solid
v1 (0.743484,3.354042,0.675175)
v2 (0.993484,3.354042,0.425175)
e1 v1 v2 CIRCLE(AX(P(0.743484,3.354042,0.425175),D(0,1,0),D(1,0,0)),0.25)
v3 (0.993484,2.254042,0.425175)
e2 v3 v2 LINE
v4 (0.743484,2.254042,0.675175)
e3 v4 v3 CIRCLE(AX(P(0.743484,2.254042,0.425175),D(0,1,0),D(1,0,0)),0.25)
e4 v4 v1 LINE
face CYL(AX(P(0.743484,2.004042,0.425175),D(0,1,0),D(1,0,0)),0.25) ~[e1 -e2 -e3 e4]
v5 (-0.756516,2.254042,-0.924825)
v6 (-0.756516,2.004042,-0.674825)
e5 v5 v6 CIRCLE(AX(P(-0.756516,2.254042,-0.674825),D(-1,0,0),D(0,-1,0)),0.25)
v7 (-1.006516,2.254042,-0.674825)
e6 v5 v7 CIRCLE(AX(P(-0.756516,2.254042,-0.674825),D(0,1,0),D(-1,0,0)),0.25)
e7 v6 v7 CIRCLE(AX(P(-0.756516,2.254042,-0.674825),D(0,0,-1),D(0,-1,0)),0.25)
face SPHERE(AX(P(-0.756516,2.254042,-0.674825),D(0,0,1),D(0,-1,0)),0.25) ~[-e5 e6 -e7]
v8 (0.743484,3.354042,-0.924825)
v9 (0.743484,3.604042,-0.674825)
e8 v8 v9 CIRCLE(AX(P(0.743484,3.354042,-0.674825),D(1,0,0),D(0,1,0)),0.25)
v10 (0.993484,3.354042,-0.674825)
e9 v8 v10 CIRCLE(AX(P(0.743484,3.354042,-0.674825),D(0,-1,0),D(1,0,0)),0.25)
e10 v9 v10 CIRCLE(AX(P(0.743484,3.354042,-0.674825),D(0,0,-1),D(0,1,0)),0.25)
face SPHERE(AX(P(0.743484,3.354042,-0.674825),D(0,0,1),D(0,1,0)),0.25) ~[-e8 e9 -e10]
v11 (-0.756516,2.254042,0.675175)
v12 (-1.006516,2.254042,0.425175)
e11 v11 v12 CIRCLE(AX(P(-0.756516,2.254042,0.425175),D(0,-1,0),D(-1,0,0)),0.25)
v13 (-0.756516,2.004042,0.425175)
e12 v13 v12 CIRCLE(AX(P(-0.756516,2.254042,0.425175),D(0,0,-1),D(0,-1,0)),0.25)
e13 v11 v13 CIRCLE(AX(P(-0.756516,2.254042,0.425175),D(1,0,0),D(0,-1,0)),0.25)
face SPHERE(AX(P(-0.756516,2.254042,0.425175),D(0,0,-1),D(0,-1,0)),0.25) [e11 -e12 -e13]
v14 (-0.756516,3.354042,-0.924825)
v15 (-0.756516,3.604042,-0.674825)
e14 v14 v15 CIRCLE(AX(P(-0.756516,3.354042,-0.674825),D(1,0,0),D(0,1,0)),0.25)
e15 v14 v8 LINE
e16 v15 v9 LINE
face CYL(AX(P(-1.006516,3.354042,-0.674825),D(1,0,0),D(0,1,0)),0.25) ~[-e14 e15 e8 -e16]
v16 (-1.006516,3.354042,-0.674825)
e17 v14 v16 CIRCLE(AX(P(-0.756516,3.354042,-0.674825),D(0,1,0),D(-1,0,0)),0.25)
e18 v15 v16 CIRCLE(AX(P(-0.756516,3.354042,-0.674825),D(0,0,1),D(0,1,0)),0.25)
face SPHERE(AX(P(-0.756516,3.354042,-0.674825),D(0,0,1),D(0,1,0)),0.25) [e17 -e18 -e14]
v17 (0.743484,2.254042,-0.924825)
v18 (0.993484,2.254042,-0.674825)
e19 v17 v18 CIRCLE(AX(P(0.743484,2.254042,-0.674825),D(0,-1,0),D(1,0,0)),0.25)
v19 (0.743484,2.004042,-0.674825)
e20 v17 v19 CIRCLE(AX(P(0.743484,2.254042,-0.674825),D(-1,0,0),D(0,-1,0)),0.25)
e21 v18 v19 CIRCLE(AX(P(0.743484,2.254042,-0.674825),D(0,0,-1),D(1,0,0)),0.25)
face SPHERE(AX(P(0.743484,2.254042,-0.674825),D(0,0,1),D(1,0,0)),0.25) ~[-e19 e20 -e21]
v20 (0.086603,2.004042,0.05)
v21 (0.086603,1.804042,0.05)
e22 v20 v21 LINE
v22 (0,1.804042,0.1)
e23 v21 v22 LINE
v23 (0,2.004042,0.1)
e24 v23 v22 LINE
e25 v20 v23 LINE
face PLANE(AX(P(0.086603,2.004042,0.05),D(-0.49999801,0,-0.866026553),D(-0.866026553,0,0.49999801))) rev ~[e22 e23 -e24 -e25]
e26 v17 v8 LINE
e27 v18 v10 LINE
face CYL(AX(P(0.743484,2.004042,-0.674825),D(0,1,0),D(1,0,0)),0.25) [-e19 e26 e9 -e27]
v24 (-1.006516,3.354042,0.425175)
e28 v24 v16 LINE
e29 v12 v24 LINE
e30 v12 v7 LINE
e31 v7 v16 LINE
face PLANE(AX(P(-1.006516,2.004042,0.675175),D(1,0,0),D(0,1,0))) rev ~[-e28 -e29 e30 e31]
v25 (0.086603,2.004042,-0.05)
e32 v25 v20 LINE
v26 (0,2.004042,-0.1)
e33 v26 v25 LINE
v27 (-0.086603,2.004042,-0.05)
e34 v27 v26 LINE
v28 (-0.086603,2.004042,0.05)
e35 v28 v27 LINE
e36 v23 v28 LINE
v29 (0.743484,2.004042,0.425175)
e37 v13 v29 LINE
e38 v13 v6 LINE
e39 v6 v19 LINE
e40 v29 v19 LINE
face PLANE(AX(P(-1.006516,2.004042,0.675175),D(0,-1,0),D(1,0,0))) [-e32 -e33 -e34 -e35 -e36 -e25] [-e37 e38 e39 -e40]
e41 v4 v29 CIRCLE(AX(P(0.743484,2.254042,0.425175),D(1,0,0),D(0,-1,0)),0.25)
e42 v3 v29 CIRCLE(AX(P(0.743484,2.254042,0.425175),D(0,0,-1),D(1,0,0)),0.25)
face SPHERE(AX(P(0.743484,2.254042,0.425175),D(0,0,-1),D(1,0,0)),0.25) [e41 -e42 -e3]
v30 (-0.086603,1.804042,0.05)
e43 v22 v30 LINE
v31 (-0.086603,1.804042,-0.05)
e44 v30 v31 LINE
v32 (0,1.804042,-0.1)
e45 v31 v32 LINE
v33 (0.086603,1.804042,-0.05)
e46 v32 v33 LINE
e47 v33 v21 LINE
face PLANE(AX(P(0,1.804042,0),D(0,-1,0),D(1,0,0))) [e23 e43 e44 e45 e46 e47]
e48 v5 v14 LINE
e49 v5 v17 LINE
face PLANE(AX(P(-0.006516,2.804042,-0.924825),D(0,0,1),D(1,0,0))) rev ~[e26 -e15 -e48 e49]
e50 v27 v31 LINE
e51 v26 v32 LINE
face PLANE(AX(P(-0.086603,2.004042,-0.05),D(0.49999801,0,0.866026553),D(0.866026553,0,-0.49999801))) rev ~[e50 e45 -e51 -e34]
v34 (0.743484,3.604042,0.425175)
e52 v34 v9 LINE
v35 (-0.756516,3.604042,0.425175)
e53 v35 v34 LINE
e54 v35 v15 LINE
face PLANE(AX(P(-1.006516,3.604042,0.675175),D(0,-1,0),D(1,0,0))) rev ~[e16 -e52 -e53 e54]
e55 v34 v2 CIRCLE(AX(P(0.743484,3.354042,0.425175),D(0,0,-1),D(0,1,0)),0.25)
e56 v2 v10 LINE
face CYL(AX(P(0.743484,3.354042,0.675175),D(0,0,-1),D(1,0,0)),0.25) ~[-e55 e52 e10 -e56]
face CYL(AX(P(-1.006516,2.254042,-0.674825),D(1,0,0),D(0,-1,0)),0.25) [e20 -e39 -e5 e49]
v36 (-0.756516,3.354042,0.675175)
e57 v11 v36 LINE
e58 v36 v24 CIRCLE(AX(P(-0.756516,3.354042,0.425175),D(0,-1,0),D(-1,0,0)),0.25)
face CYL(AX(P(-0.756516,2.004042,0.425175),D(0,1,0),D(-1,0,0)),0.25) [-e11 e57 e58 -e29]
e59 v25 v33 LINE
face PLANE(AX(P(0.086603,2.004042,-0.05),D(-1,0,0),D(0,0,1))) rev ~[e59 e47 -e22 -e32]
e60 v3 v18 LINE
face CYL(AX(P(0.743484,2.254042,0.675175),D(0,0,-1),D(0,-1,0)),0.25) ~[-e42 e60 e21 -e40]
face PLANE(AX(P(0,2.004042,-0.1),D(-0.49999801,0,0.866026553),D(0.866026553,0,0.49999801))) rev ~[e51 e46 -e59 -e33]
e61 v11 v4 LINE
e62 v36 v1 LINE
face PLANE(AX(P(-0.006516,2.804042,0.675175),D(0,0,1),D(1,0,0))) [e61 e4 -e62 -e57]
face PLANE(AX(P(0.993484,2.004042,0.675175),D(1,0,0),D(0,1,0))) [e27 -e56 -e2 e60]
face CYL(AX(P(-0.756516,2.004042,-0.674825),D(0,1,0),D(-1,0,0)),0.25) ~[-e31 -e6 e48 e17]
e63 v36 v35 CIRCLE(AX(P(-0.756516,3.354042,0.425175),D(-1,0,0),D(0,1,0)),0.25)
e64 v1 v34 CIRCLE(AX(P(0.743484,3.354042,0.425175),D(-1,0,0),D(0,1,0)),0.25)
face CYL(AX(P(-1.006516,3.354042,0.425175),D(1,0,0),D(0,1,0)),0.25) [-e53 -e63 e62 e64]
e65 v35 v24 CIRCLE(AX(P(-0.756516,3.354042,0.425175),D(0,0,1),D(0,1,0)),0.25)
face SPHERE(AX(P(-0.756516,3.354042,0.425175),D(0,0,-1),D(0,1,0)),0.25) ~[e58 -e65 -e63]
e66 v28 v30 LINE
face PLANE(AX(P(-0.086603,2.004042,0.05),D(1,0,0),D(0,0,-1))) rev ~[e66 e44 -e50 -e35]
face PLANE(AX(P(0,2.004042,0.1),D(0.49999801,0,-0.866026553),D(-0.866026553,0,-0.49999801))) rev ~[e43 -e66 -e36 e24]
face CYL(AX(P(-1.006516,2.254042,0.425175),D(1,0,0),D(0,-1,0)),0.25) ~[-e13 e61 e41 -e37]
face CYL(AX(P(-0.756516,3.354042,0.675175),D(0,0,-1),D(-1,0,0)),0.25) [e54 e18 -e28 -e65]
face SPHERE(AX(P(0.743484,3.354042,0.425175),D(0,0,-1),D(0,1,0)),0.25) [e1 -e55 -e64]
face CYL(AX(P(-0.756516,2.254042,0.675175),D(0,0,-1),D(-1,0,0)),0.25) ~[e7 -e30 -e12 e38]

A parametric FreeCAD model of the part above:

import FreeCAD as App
import Part
import Sketcher

V = App.Vector

doc = App.newDocument("Part")
params = doc.addObject("Spreadsheet::Sheet", "Params")
for row, (alias, value) in enumerate([
    ("sketch1_width", "2 mm"),
    ("sketch1_height", "1.6 mm"),
    ("pad1_length", "1.6 mm"),
    ("fillet_radius", "0.25 mm"),
    ("sketch2_height", "0.1 mm"),
    ("sketch2_length", "0.1 mm"),
    ("pad2_length", "0.2 mm"),
], start=1):
    params.set(f"A{row}", alias)
    params.set(f"B{row}", "=" + value)
    params.setAlias(f"B{row}", alias)

body = doc.addObject("PartDesign::Body", "Body")

sketch1 = doc.addObject("Sketcher::SketchObject", "Sketch")
body.addObject(sketch1)
sketch1.AttachmentSupport = (doc.XY_Plane, [""])
sketch1.MapMode = "FlatFace"
sketch1.AttachmentOffset = App.Placement(V(0, 0, 0.675175), App.Rotation())
sketch1.addGeometry(Part.LineSegment(V(-1.006516, 3.604042, 0), V(-1.006516, 2.004042, 0)), False)
sketch1.addGeometry(Part.LineSegment(V(-1.006516, 2.004042, 0), V(0.993484, 2.004042, 0)), False)
sketch1.addGeometry(Part.LineSegment(V(0.993484, 2.004042, 0), V(0.993484, 3.604042, 0)), False)
sketch1.addGeometry(Part.LineSegment(V(0.993484, 3.604042, 0), V(-1.006516, 3.604042, 0)), False)
sketch1.addConstraint(Sketcher.Constraint("Coincident", 0, 2, 1, 1))
sketch1.addConstraint(Sketcher.Constraint("Coincident", 1, 2, 2, 1))
sketch1.addConstraint(Sketcher.Constraint("Coincident", 2, 2, 3, 1))
sketch1.addConstraint(Sketcher.Constraint("Coincident", 3, 2, 0, 1))
sketch1.addConstraint(Sketcher.Constraint("Vertical", 0))
sketch1.addConstraint(Sketcher.Constraint("Horizontal", 1))
sketch1.addConstraint(Sketcher.Constraint("Vertical", 2))
sketch1.addConstraint(Sketcher.Constraint("Horizontal", 3))
sketch1.addConstraint(Sketcher.Constraint("DistanceX", 1, 1, 1, 2, 2.0))
sketch1.addConstraint(Sketcher.Constraint("DistanceY", 0, 2, 0, 1, 1.6))
sketch1.addConstraint(Sketcher.Constraint("DistanceX", 0, 2, -1, 1, 1.006516))
sketch1.addConstraint(Sketcher.Constraint("DistanceY", -1, 1, 0, 2, 2.004042))
sketch1.setExpression("Constraints[8]", "Params.sketch1_width")
sketch1.setExpression("Constraints[9]", "Params.sketch1_height")
pad1 = doc.addObject("PartDesign::Pad", "Pad")
body.addObject(pad1)
pad1.Profile = sketch1
pad1.setExpression("Length", "Params.pad1_length")
pad1.Reversed = True
doc.recompute()

fillet = doc.addObject("PartDesign::Fillet", "Fillet")
body.addObject(fillet)
fillet.Base = (pad1, ["Edge1"])
fillet.UseAllEdges = True
fillet.setExpression("Radius", "Params.fillet_radius")

sketch2 = doc.addObject("Sketcher::SketchObject", "Sketch001")
body.addObject(sketch2)
sketch2.AttachmentSupport = (doc.XZ_Plane, [""])
sketch2.MapMode = "FlatFace"
sketch2.AttachmentOffset = App.Placement(V(0, 0, -2.004042), App.Rotation())
sketch2.addGeometry(Part.LineSegment(V(0, 0.1, 0), V(-0.086603, 0.05, 0)), False)
sketch2.addGeometry(Part.LineSegment(V(-0.086603, 0.05, 0), V(-0.086603, -0.05, 0)), False)
sketch2.addGeometry(Part.LineSegment(V(-0.086603, -0.05, 0), V(0, -0.1, 0)), False)
sketch2.addGeometry(Part.LineSegment(V(0, -0.1, 0), V(0.086603, -0.05, 0)), False)
sketch2.addGeometry(Part.LineSegment(V(0.086603, -0.05, 0), V(0.086603, 0.05, 0)), False)
sketch2.addGeometry(Part.LineSegment(V(0.086603, 0.05, 0), V(0, 0.1, 0)), False)
sketch2.addConstraint(Sketcher.Constraint("Coincident", 0, 2, 1, 1))
sketch2.addConstraint(Sketcher.Constraint("Coincident", 1, 2, 2, 1))
sketch2.addConstraint(Sketcher.Constraint("Coincident", 2, 2, 3, 1))
sketch2.addConstraint(Sketcher.Constraint("Coincident", 3, 2, 4, 1))
sketch2.addConstraint(Sketcher.Constraint("Coincident", 4, 2, 5, 1))
sketch2.addConstraint(Sketcher.Constraint("Coincident", 5, 2, 0, 1))
sketch2.addConstraint(Sketcher.Constraint("Vertical", 1))
sketch2.addConstraint(Sketcher.Constraint("Vertical", 4))
sketch2.addConstraint(Sketcher.Constraint("Symmetric", 0, 2, 3, 2, -1, 1))
sketch2.addConstraint(Sketcher.Constraint("Symmetric", 2, 2, 5, 2, -1, 1))
sketch2.addConstraint(Sketcher.Constraint("PointOnObject", 2, 2, -2))
sketch2.addConstraint(Sketcher.Constraint("Parallel", 2, 5))
sketch2.addConstraint(Sketcher.Constraint("Horizontal", 1, 2, 3, 2))
sketch2.addConstraint(Sketcher.Constraint("DistanceY", 1, 2, 1, 1, 0.1))
sketch2.addConstraint(Sketcher.Constraint("Distance", 0, 0.1))
sketch2.addConstraint(Sketcher.Constraint("DistanceY", 2, 2, -1, 1, 0.1))
sketch2.setExpression("Constraints[13]", "Params.sketch2_height")
sketch2.setExpression("Constraints[14]", "Params.sketch2_length")
pad2 = doc.addObject("PartDesign::Pad", "Pad001")
body.addObject(pad2)
pad2.Profile = sketch2
pad2.setExpression("Length", "Params.pad2_length")

doc.recompute()
